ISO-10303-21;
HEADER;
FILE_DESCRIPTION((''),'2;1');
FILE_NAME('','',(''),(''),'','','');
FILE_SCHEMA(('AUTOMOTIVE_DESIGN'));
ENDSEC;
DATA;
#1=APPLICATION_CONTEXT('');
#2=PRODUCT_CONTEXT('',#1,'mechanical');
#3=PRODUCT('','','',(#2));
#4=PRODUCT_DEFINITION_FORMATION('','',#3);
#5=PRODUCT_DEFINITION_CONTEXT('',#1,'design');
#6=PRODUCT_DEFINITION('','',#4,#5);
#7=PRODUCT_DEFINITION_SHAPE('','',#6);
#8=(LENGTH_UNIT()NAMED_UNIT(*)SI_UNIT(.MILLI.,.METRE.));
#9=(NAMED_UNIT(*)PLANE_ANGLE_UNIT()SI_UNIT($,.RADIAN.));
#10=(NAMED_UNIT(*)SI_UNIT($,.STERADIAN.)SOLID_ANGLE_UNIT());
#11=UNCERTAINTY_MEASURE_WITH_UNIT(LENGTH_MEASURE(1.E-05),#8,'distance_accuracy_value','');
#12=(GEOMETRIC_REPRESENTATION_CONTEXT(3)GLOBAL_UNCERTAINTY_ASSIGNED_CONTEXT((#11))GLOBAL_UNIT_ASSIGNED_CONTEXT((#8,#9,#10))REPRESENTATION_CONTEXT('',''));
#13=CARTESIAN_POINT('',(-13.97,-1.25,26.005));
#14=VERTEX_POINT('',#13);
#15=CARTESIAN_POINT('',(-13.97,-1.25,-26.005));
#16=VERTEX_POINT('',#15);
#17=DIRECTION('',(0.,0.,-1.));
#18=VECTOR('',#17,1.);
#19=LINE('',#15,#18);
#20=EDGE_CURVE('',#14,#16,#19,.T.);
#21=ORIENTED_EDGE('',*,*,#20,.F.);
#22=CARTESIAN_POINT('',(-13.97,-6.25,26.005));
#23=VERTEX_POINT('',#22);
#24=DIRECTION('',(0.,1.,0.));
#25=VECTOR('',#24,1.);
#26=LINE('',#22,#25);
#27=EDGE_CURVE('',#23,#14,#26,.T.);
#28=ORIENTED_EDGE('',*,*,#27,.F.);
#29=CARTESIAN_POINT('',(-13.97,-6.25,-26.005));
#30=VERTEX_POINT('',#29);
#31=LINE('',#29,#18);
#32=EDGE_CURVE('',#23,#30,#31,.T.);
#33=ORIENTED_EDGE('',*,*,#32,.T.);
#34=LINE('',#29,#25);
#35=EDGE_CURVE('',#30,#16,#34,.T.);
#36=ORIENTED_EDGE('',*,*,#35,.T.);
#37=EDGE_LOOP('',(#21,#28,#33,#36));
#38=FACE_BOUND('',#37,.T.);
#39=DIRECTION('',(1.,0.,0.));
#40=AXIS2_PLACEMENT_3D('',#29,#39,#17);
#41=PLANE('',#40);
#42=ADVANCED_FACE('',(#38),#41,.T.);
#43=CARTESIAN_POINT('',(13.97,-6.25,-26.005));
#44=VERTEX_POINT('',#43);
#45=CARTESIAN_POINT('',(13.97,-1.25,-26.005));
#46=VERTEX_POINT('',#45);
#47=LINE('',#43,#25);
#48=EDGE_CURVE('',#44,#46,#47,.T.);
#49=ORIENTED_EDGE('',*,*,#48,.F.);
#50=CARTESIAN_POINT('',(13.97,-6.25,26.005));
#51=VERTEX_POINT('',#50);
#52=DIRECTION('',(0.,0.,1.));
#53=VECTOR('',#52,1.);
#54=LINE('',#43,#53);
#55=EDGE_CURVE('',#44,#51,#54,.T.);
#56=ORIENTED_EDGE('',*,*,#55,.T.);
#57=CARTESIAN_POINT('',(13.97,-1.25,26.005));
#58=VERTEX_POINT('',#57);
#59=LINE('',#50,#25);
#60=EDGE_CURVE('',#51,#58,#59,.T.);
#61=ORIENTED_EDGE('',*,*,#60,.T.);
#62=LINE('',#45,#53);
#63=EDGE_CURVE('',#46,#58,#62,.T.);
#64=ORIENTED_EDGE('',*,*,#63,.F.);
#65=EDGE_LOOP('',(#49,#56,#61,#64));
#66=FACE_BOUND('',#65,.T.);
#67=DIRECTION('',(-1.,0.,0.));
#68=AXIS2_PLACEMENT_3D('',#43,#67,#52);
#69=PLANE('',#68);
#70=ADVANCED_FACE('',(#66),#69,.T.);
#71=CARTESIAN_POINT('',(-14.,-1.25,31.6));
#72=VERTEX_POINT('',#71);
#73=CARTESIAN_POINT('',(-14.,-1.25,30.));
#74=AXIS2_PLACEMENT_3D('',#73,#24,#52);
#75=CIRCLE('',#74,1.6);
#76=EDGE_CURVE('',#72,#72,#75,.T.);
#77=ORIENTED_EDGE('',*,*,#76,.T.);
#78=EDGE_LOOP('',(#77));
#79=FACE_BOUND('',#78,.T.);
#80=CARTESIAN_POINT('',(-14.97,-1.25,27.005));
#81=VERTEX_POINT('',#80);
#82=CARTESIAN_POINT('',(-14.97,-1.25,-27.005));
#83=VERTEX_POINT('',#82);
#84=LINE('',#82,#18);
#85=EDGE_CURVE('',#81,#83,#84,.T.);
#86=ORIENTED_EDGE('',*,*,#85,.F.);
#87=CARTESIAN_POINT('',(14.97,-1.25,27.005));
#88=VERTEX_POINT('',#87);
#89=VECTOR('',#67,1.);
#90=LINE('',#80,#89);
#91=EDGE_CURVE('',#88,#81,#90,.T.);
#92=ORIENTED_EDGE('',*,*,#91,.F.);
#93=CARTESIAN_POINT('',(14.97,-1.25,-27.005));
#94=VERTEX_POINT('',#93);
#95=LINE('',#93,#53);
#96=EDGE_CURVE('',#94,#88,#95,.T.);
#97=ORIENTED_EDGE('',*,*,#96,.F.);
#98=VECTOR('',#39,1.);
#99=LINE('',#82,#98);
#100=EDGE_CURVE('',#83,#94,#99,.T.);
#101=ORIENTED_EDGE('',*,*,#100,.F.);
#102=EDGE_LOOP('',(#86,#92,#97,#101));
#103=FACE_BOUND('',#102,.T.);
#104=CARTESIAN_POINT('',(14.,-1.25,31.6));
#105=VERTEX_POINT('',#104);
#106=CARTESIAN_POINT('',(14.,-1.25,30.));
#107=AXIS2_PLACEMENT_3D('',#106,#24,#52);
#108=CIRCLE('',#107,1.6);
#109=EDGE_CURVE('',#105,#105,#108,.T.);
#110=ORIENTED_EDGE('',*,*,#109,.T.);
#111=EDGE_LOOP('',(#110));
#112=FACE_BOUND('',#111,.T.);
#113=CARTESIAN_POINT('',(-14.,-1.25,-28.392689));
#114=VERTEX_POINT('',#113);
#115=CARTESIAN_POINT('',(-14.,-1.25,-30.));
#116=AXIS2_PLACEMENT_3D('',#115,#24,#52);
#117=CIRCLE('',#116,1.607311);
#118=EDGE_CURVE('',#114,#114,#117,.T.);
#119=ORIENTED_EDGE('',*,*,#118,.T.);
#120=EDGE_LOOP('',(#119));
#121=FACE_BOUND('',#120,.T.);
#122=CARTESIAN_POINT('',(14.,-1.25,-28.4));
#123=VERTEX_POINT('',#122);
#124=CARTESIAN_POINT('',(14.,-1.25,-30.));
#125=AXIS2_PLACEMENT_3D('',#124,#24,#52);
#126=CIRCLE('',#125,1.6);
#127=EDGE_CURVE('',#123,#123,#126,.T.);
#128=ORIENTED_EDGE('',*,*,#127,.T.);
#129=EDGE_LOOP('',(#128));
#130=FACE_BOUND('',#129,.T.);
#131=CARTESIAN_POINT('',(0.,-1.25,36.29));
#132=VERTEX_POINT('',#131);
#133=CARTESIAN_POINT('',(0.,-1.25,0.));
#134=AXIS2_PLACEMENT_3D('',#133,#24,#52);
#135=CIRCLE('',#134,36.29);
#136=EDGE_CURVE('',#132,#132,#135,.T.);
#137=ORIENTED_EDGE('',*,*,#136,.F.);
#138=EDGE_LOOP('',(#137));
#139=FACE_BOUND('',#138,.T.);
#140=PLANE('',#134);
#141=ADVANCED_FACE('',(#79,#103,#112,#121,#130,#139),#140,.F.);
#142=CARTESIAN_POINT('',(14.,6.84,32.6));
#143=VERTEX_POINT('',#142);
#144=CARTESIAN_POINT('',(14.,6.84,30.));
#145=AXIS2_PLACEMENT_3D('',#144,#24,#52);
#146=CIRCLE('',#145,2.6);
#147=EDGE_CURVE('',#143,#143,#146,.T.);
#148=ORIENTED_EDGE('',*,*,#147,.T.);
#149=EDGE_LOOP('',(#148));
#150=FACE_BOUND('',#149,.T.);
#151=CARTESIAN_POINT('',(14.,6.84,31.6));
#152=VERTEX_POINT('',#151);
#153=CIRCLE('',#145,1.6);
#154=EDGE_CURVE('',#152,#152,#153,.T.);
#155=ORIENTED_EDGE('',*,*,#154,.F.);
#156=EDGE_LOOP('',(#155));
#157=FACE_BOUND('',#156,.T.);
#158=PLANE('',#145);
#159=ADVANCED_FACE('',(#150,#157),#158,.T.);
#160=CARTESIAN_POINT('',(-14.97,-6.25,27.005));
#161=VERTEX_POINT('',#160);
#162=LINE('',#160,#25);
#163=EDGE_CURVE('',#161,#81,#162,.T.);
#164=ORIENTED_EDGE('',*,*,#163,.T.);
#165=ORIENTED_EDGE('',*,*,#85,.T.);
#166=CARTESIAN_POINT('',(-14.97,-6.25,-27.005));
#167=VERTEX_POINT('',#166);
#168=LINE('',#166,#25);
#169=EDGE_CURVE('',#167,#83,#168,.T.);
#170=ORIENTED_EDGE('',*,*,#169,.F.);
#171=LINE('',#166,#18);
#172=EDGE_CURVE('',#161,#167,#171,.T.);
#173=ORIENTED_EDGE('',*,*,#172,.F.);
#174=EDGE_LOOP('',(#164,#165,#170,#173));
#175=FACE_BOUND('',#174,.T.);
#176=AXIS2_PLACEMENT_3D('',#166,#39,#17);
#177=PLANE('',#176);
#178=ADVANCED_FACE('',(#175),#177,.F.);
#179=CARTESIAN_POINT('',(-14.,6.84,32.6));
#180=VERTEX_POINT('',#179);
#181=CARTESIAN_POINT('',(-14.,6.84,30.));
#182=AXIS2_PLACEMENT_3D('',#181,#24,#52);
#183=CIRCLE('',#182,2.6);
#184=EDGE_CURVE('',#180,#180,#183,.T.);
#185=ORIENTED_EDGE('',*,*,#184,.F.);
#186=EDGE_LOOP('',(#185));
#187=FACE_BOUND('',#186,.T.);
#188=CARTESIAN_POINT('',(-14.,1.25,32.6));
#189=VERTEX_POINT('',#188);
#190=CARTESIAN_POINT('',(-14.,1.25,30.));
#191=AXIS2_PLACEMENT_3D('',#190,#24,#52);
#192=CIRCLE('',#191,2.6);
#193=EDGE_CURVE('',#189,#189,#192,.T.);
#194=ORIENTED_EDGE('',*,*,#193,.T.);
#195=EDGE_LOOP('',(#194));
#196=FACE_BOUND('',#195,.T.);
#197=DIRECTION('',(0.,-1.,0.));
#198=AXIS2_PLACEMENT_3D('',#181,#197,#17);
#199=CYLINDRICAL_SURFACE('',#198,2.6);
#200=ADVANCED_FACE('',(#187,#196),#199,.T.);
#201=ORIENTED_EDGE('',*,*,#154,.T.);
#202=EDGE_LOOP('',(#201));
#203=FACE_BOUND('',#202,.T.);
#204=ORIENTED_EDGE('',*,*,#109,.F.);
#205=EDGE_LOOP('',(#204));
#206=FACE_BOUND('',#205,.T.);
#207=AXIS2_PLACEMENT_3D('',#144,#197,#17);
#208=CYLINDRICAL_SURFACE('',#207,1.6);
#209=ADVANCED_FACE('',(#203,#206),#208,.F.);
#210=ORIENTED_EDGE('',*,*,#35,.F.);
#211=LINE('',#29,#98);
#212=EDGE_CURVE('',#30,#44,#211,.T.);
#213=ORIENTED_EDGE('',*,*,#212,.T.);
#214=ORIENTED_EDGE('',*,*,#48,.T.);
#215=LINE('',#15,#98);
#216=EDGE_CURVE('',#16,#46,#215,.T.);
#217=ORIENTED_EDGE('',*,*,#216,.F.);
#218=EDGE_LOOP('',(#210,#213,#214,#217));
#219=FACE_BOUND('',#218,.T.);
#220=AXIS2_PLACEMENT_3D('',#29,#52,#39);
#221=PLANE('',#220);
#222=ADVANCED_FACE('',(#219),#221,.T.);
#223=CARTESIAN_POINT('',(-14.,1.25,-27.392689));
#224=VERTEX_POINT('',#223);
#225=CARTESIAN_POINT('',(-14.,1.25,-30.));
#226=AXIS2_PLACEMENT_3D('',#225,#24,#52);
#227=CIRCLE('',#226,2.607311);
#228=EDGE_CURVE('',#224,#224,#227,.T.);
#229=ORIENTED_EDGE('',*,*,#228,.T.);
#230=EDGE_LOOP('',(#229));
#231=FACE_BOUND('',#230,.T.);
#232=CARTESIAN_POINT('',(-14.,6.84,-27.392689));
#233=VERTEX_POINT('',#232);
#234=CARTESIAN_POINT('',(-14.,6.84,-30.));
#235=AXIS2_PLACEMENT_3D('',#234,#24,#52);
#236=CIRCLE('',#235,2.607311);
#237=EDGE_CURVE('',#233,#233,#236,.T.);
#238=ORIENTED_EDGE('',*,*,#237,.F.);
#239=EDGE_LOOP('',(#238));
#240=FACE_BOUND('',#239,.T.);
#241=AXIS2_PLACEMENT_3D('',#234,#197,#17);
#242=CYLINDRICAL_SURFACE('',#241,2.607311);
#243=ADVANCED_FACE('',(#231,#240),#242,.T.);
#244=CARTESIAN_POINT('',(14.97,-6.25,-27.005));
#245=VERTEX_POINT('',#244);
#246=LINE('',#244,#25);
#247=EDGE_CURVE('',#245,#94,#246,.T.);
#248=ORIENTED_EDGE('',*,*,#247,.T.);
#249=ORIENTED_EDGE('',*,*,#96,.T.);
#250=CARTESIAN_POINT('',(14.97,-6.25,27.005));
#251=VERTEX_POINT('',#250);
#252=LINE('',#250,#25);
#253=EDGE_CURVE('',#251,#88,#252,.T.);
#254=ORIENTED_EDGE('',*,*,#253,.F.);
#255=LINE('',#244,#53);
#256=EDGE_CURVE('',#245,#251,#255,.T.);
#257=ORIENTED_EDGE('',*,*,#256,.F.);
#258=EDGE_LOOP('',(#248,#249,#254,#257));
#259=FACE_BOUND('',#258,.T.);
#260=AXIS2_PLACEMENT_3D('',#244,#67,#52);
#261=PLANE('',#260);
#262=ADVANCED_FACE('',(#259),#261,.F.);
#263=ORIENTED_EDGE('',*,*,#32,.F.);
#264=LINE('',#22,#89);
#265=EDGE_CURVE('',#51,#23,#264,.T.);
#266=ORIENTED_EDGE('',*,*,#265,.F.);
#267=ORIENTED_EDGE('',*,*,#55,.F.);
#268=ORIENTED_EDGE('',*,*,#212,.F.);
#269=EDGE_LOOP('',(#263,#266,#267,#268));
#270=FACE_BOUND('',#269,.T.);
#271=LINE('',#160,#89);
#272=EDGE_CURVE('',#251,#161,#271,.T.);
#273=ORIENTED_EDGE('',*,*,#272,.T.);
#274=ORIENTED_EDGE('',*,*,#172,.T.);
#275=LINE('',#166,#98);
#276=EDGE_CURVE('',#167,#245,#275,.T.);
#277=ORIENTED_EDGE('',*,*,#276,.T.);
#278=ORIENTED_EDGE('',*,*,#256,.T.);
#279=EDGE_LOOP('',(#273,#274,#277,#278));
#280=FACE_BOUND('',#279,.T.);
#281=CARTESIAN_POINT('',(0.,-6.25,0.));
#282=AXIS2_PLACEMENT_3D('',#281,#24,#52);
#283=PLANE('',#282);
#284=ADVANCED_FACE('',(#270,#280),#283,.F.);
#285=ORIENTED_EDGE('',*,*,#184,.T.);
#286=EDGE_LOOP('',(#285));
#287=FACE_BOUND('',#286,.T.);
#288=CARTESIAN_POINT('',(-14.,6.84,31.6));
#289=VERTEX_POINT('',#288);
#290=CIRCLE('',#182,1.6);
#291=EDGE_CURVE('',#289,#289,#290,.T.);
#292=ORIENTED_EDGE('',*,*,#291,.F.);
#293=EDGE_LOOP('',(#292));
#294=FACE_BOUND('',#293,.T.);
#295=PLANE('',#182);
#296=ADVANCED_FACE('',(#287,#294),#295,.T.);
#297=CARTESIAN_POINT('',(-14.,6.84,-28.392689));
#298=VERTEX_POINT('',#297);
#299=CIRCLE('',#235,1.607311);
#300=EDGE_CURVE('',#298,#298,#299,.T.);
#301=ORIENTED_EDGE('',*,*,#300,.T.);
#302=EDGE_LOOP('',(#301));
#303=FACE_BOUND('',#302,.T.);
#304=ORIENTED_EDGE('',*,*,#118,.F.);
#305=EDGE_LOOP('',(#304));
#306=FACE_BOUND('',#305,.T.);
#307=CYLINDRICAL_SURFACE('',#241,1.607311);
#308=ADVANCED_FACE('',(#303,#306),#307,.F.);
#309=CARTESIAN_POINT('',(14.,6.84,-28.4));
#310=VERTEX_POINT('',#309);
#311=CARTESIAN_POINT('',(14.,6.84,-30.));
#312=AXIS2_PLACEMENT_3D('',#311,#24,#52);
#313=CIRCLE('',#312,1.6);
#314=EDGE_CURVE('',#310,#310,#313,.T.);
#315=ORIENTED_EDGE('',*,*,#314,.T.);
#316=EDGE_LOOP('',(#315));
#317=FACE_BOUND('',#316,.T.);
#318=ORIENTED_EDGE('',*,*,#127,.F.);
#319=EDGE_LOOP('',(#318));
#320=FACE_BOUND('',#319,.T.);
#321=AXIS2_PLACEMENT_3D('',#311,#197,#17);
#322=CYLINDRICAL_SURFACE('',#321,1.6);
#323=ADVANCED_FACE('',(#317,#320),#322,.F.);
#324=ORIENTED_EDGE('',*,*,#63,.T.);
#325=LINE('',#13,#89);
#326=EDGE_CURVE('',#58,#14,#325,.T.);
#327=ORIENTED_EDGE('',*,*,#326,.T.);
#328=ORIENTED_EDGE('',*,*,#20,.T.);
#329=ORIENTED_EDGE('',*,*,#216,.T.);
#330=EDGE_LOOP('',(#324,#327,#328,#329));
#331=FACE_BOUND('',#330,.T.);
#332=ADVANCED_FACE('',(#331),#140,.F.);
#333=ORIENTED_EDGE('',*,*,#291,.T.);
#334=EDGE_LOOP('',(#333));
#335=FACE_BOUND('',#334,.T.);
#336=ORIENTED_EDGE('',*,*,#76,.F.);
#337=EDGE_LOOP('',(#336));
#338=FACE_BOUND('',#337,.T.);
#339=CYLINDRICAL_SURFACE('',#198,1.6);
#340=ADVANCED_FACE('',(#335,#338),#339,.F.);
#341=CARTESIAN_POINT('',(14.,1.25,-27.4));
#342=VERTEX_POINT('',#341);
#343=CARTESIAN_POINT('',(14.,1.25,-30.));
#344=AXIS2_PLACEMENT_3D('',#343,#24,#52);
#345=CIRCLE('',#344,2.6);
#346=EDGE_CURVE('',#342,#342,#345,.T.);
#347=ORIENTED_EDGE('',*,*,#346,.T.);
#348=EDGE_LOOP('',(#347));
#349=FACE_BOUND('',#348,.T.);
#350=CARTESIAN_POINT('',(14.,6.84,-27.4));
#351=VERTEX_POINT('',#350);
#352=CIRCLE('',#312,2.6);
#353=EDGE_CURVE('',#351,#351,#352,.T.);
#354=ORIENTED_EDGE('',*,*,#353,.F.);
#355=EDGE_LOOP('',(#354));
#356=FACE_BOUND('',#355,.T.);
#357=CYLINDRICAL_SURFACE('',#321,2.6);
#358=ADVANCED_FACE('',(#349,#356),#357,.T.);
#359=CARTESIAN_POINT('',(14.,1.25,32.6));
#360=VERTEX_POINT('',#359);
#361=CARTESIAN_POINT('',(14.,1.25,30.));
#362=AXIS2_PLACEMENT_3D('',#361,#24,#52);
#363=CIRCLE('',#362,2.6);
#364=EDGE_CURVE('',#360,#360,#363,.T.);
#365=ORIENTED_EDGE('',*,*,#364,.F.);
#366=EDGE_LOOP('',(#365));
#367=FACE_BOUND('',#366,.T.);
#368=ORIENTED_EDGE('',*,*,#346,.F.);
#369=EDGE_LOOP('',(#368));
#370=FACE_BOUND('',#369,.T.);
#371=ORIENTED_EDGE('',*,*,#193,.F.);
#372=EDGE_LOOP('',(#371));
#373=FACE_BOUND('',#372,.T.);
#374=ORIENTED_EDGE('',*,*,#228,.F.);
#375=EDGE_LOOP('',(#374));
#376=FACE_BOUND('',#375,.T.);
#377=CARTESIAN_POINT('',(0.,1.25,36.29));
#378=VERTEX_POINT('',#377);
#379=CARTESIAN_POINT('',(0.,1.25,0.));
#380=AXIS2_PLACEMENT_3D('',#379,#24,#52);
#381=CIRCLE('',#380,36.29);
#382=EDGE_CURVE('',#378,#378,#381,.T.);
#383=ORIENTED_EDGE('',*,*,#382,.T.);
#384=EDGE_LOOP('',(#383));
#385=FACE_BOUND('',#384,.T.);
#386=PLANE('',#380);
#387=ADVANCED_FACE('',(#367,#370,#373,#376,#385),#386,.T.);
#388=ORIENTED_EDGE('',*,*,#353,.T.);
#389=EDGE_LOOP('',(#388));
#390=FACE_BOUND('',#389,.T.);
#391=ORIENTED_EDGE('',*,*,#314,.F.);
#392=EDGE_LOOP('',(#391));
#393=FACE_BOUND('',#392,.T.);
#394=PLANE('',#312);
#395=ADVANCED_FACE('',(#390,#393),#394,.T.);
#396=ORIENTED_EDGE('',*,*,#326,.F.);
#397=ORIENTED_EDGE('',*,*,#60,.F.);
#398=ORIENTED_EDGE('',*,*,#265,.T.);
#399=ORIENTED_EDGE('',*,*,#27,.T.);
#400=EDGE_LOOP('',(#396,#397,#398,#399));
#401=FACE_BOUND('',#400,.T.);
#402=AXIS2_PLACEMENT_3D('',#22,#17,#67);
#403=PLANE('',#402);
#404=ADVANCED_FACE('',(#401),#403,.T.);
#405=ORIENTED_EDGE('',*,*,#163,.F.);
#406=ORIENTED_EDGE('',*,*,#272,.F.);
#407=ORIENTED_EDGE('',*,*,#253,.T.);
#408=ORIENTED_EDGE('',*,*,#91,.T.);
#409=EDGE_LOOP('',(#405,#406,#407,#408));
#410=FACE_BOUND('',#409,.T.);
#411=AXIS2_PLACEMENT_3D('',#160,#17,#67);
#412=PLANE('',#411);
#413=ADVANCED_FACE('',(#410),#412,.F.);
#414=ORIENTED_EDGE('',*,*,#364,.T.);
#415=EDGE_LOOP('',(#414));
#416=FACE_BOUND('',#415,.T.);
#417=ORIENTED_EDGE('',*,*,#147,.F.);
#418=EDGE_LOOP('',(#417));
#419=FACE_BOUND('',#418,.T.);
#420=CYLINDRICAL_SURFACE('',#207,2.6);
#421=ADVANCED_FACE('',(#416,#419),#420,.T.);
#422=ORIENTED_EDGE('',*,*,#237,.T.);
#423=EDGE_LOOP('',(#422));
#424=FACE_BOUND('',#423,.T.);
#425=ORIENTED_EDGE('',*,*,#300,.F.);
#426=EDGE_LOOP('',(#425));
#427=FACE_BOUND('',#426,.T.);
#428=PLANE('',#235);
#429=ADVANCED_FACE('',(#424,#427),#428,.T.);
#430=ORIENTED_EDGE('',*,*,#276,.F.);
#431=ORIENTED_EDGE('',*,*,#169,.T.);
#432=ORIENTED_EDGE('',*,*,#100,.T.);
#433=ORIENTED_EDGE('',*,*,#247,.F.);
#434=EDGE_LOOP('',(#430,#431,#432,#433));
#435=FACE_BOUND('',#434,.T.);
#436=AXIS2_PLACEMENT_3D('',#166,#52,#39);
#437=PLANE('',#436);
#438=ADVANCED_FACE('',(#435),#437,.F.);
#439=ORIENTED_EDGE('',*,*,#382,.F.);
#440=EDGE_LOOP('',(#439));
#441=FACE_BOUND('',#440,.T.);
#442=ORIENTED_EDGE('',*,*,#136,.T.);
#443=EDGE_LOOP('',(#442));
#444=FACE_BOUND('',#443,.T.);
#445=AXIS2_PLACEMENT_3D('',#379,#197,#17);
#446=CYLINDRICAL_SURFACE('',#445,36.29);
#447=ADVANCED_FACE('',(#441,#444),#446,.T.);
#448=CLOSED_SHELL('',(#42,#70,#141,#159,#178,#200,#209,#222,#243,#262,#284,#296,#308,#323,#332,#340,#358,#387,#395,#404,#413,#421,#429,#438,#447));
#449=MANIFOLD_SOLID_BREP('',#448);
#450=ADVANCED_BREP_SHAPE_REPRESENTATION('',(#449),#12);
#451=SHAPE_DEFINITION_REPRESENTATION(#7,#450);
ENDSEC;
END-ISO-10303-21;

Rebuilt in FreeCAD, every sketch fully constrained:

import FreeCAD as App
import Part
import Sketcher

doc = App.newDocument("Part")
body = doc.addObject("PartDesign::Body", "Body")

sketch1 = doc.addObject("Sketcher::SketchObject", "Sketch")
body.addObject(sketch1)
sketch1.AttachmentSupport = (doc.XZ_Plane, [""])
sketch1.MapMode = "FlatFace"
sketch1.addGeometry(Part.Circle(App.Vector(0, 0, 0), App.Vector(0, 0, 1), 36), False)
sketch1.addConstraint([
    Sketcher.Constraint("Coincident", 0, 3, -1, 1),
    Sketcher.Constraint("Diameter", 0, 72.58),
])
pad1 = doc.addObject("PartDesign::Pad", "Pad")
body.addObject(pad1)
pad1.Profile = sketch1
pad1.Length = 2.5
pad1.Midplane = True

sketch2 = doc.addObject("Sketcher::SketchObject", "Sketch001")
body.addObject(sketch2)
sketch2.AttachmentSupport = (doc.XZ_Plane, [""])
sketch2.MapMode = "FlatFace"
sketch2.AttachmentOffset = App.Placement(App.Vector(0, 0, 1.25), App.Rotation())
sketch2.addGeometry([
    Part.LineSegment(App.Vector(-15, 27, 0), App.Vector(-15, -27, 0)),
    Part.LineSegment(App.Vector(-15, -27, 0), App.Vector(15, -27, 0)),
    Part.LineSegment(App.Vector(15, -27, 0), App.Vector(15, 27, 0)),
    Part.LineSegment(App.Vector(15, 27, 0), App.Vector(-15, 27, 0)),
    Part.LineSegment(App.Vector(14, -26, 0), App.Vector(-14, -26, 0)),
    Part.LineSegment(App.Vector(-14, -26, 0), App.Vector(-14, 26, 0)),
    Part.LineSegment(App.Vector(-14, 26, 0), App.Vector(14, 26, 0)),
    Part.LineSegment(App.Vector(14, 26, 0), App.Vector(14, -26, 0)),
], False)
sketch2.addConstraint([
    Sketcher.Constraint("Coincident", 0, 2, 1, 1),
    Sketcher.Constraint("Coincident", 1, 2, 2, 1),
    Sketcher.Constraint("Coincident", 2, 2, 3, 1),
    Sketcher.Constraint("Coincident", 3, 2, 0, 1),
    Sketcher.Constraint("Coincident", 4, 2, 5, 1),
    Sketcher.Constraint("Coincident", 5, 2, 6, 1),
    Sketcher.Constraint("Coincident", 6, 2, 7, 1),
    Sketcher.Constraint("Coincident", 7, 2, 4, 1),
    Sketcher.Constraint("Vertical", 0),
    Sketcher.Constraint("Horizontal", 1),
    Sketcher.Constraint("Vertical", 2),
    Sketcher.Constraint("Horizontal", 3),
    Sketcher.Constraint("Horizontal", 4),
    Sketcher.Constraint("Vertical", 5),
    Sketcher.Constraint("Horizontal", 6),
    Sketcher.Constraint("Vertical", 7),
    Sketcher.Constraint("Symmetric", 0, 2, 2, 2, -1, 1),
    Sketcher.Constraint("Symmetric", 4, 2, 6, 2, -1, 1),
    Sketcher.Constraint("DistanceX", 0, 2, 4, 2, 1.0),
    Sketcher.Constraint("DistanceY", 0, 2, 4, 2, 1.0),
    Sketcher.Constraint("DistanceX", 1, 1, 1, 2, 29.94),
    Sketcher.Constraint("DistanceY", 0, 2, 0, 1, 54.01),
])
pad2 = doc.addObject("PartDesign::Pad", "Pad001")
body.addObject(pad2)
pad2.Profile = sketch2
pad2.Length = 5

sketch3 = doc.addObject("Sketcher::SketchObject", "Sketch002")
body.addObject(sketch3)
sketch3.AttachmentSupport = (doc.XZ_Plane, [""])
sketch3.MapMode = "FlatFace"
sketch3.AttachmentOffset = App.Placement(App.Vector(0, 0, -1.25), App.Rotation())
sketch3.addGeometry([
    Part.Circle(App.Vector(-14, -30, 0), App.Vector(0, 0, 1), 2.6),
    Part.Circle(App.Vector(-14, -30, 0), App.Vector(0, 0, 1), 1.6),
    Part.Circle(App.Vector(14, -30, 0), App.Vector(0, 0, 1), 2.6),
    Part.Circle(App.Vector(14, -30, 0), App.Vector(0, 0, 1), 1.6),
    Part.Circle(App.Vector(-14, 30, 0), App.Vector(0, 0, 1), 2.6),
    Part.Circle(App.Vector(-14, 30, 0), App.Vector(0, 0, 1), 1.6),
    Part.Circle(App.Vector(14, 30, 0), App.Vector(0, 0, 1), 2.6),
    Part.Circle(App.Vector(14, 30, 0), App.Vector(0, 0, 1), 1.6),
], False)
sketch3.addConstraint([
    Sketcher.Constraint("Coincident", 1, 3, 0, 3),
    Sketcher.Constraint("Coincident", 3, 3, 2, 3),
    Sketcher.Constraint("Coincident", 5, 3, 4, 3),
    Sketcher.Constraint("Coincident", 7, 3, 6, 3),
    Sketcher.Constraint("Equal", 2, 4),
    Sketcher.Constraint("Equal", 3, 5),
    Sketcher.Constraint("Equal", 4, 6),
    Sketcher.Constraint("Equal", 5, 7),
    Sketcher.Constraint("Symmetric", 2, 3, 4, 3, -1, 1),
    Sketcher.Constraint("Symmetric", 0, 3, 6, 3, -1, 1),
    Sketcher.Constraint("Symmetric", 0, 3, 2, 3, -2),
    Sketcher.Constraint("Diameter", 2, 5.2),
    Sketcher.Constraint("Diameter", 3, 3.2),
    Sketcher.Constraint("DistanceX", 0, 3, -1, 1, 14.0),
    Sketcher.Constraint("DistanceY", 0, 3, -1, 1, 30.0),
    Sketcher.Constraint("Diameter", 0, 5.214623),
    Sketcher.Constraint("Diameter", 1, 3.214623),
])
pad3 = doc.addObject("PartDesign::Pad", "Pad002")
body.addObject(pad3)
pad3.Profile = sketch3
pad3.Length = 5.59
pad3.Reversed = True

sketch4 = doc.addObject("Sketcher::SketchObject", "Sketch003")
body.addObject(sketch4)
sketch4.AttachmentSupport = (doc.XZ_Plane, [""])
sketch4.MapMode = "FlatFace"
sketch4.AttachmentOffset = App.Placement(App.Vector(0, 0, -1.25), App.Rotation())
sketch4.addGeometry([
    Part.Circle(App.Vector(-14, -30, 0), App.Vector(0, 0, 1), 1.6),
    Part.Circle(App.Vector(14, -30, 0), App.Vector(0, 0, 1), 1.6),
    Part.Circle(App.Vector(-14, 30, 0), App.Vector(0, 0, 1), 1.6),
    Part.Circle(App.Vector(14, 30, 0), App.Vector(0, 0, 1), 1.6),
], False)
sketch4.addConstraint([
    Sketcher.Constraint("Equal", 1, 2),
    Sketcher.Constraint("Equal", 2, 3),
    Sketcher.Constraint("Symmetric", 1, 3, 2, 3, -1, 1),
    Sketcher.Constraint("Symmetric", 0, 3, 3, 3, -1, 1),
    Sketcher.Constraint("Symmetric", 0, 3, 1, 3, -2),
    Sketcher.Constraint("Diameter", 1, 3.2),
    Sketcher.Constraint("DistanceX", 0, 3, -1, 1, 14.0),
    Sketcher.Constraint("DistanceY", 0, 3, -1, 1, 30.0),
    Sketcher.Constraint("Diameter", 0, 3.214623),
])
pocket1 = doc.addObject("PartDesign::Pocket", "Pocket")
body.addObject(pocket1)
pocket1.Profile = sketch4
pocket1.Type = "ThroughAll"
pocket1.Reversed = True

doc.recompute()
